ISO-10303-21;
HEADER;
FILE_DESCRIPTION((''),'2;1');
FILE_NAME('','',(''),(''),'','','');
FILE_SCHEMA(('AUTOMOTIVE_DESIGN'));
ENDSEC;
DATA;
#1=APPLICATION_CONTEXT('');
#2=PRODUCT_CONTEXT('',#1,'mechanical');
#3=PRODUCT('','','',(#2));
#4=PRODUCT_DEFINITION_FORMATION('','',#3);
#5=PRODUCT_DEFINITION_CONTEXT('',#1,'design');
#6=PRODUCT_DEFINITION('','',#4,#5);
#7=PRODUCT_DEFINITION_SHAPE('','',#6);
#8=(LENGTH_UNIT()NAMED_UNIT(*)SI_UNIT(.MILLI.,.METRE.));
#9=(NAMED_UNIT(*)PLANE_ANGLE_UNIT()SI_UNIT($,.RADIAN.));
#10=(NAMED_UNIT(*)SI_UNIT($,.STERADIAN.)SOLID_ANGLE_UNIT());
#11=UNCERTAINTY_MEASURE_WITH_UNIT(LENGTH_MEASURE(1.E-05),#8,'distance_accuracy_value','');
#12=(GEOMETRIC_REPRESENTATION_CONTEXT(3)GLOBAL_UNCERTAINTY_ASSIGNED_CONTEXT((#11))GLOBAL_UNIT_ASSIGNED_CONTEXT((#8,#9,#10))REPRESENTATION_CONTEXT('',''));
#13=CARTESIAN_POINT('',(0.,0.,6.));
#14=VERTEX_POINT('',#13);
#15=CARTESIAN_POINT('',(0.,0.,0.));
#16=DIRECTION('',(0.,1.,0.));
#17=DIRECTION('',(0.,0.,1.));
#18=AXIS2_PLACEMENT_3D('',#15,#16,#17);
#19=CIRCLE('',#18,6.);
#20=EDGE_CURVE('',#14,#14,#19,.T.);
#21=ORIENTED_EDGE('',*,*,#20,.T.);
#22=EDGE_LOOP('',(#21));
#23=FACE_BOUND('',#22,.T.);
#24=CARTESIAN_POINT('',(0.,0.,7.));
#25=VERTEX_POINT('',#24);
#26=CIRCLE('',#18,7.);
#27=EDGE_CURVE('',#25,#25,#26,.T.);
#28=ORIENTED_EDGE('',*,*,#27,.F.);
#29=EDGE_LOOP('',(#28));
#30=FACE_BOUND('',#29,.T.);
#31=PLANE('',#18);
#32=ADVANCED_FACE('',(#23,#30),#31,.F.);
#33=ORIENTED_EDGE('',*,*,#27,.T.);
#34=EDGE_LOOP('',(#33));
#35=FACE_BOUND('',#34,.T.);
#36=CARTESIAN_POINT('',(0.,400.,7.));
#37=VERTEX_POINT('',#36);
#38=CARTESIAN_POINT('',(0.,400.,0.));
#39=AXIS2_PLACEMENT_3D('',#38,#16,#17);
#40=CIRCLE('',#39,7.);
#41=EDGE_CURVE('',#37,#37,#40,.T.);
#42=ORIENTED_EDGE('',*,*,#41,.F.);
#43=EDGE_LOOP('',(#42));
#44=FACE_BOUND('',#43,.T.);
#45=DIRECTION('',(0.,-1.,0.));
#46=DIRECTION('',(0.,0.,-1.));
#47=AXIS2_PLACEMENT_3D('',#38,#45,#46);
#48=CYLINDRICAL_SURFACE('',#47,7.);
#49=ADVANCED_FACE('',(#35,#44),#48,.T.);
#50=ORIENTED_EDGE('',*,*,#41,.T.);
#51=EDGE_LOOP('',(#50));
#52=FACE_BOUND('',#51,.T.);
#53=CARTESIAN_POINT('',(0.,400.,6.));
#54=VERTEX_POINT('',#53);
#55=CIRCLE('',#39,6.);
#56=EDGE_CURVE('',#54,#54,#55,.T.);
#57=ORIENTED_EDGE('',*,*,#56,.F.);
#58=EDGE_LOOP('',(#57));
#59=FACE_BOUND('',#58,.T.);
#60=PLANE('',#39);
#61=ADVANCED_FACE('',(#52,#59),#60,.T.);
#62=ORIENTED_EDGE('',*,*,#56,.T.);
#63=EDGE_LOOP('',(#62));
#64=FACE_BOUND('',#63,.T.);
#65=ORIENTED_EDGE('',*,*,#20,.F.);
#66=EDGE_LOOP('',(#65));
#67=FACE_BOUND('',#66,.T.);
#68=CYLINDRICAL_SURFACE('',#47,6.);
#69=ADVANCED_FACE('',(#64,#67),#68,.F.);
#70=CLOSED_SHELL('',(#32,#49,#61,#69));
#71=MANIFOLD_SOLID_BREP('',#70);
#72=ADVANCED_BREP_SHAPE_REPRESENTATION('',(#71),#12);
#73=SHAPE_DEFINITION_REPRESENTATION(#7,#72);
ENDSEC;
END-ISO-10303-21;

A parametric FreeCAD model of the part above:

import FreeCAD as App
import Part
import Sketcher

V = App.Vector

doc = App.newDocument("Part")
body = doc.addObject("PartDesign::Body", "Body")

# Sketch on XZ plane
sketch1 = doc.addObject("Sketcher::SketchObject", "Sketch")
body.addObject(sketch1)
sketch1.AttachmentSupport = (doc.XZ_Plane, [""])
sketch1.MapMode = "FlatFace"
sketch1.addGeometry(Part.Circle(V(0, 0, 0), V(0, 0, 1), 7), False)
sketch1.addGeometry(Part.Circle(V(0, 0, 0), V(0, 0, 1), 6), False)
sketch1.addConstraint(Sketcher.Constraint("Coincident", 0, 3, -1, 1))
sketch1.addConstraint(Sketcher.Constraint("Coincident", 1, 3, -1, 1))
sketch1.addConstraint(Sketcher.Constraint("Diameter", 0, 14.0))
sketch1.addConstraint(Sketcher.Constraint("Diameter", 1, 12.0))
pad1 = doc.addObject("PartDesign::Pad", "Pad")
body.addObject(pad1)
pad1.Profile = sketch1
pad1.Length = 400
pad1.Reversed = True

doc.recompute()
